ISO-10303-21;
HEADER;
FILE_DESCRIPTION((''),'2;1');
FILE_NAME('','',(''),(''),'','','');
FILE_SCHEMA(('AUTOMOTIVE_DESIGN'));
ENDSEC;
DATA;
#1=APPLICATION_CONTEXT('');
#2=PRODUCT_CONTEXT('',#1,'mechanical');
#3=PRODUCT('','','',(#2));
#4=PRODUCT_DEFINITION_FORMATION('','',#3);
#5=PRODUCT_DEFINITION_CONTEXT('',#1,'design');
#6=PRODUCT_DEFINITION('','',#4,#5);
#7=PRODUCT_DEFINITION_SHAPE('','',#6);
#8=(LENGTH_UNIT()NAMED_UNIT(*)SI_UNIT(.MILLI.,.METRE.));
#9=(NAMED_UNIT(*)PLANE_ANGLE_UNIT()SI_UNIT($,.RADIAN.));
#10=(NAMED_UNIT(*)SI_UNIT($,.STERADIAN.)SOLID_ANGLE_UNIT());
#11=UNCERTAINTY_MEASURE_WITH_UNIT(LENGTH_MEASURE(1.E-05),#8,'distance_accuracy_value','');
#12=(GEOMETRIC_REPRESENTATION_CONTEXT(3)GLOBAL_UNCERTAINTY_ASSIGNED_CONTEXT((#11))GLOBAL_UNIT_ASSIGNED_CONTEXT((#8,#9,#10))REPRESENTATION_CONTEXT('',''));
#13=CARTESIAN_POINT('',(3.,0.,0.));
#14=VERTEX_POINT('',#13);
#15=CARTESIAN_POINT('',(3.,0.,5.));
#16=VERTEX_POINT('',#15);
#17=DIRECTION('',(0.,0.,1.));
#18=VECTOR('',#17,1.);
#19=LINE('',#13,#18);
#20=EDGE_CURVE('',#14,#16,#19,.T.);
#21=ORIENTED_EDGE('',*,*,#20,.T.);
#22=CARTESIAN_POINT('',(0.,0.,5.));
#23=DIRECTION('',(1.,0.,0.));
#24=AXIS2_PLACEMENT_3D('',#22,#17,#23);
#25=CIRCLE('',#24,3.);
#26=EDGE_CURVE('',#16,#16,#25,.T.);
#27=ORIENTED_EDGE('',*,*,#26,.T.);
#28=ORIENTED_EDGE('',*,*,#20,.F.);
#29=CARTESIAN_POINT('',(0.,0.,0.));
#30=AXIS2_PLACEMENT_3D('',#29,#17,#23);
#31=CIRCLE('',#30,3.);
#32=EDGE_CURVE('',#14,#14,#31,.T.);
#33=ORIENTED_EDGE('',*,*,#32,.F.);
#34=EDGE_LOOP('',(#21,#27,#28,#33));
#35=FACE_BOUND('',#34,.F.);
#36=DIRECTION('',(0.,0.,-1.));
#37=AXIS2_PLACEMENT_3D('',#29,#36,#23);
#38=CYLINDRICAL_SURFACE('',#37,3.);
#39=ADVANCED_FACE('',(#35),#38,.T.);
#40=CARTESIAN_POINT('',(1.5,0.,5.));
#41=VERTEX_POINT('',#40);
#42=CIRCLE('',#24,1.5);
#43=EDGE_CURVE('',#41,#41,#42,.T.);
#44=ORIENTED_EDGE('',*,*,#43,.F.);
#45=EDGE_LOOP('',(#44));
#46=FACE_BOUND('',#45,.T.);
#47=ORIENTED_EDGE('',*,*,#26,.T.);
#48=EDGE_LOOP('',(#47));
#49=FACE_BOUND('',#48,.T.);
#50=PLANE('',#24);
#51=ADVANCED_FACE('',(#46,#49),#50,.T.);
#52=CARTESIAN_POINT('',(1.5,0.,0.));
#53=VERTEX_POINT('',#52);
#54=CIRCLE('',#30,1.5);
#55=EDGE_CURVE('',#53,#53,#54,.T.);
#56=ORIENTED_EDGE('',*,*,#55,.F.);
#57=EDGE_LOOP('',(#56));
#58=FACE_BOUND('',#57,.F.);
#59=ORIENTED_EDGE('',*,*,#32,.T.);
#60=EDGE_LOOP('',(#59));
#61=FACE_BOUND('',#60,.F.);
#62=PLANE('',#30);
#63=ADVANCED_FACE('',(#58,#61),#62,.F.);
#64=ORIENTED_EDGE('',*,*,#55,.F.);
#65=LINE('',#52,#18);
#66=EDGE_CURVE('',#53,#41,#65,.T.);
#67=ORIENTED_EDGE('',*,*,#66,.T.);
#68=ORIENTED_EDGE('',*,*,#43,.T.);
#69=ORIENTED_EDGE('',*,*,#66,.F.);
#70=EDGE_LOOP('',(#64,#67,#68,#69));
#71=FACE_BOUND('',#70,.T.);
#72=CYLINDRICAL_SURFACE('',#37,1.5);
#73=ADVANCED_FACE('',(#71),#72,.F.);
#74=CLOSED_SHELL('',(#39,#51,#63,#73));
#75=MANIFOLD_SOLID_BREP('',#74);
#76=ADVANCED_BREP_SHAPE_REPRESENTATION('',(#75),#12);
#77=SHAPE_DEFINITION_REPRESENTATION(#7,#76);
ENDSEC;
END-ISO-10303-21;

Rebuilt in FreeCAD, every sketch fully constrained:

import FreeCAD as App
import Part
import Sketcher

doc = App.newDocument("Part")
params = doc.addObject("Spreadsheet::Sheet", "Params")
for row, (alias, value) in enumerate([
    ("sketch1_diameter", "6 mm"),
    ("sketch1_diameter2", "3 mm"),
    ("pad1_length", "5 mm"),
], start=1):
    params.set(f"A{row}", alias)
    params.set(f"B{row}", "=" + value)
    params.setAlias(f"B{row}", alias)

body = doc.addObject("PartDesign::Body", "Body")

# Sketch on XY plane
sketch1 = body.newObject("Sketcher::SketchObject", "Sketch")
sketch1.AttachmentSupport = (doc.getObject("XY_Plane"), [""])
sketch1.MapMode = "FlatFace"
sketch1.addGeometry([
    Part.Circle(App.Vector(0, 0, 0), App.Vector(0, 0, 1), 3),
    Part.Circle(App.Vector(0, 0, 0), App.Vector(0, 0, 1), 1.5),
], False)
sketch1.addConstraint([
    Sketcher.Constraint("Coincident", 0, 3, -1, 1),
    Sketcher.Constraint("Coincident", 1, 3, -1, 1),
    Sketcher.Constraint("Diameter", 0, 6.0),
    Sketcher.Constraint("Diameter", 1, 3.0),
])
sketch1.setExpression("Constraints[2]", "Params.sketch1_diameter")
sketch1.setExpression("Constraints[3]", "Params.sketch1_diameter2")
pad1 = body.newObject("PartDesign::Pad", "Pad")
pad1.Profile = sketch1
pad1.setExpression("Length", "Params.pad1_length")

doc.recompute()
